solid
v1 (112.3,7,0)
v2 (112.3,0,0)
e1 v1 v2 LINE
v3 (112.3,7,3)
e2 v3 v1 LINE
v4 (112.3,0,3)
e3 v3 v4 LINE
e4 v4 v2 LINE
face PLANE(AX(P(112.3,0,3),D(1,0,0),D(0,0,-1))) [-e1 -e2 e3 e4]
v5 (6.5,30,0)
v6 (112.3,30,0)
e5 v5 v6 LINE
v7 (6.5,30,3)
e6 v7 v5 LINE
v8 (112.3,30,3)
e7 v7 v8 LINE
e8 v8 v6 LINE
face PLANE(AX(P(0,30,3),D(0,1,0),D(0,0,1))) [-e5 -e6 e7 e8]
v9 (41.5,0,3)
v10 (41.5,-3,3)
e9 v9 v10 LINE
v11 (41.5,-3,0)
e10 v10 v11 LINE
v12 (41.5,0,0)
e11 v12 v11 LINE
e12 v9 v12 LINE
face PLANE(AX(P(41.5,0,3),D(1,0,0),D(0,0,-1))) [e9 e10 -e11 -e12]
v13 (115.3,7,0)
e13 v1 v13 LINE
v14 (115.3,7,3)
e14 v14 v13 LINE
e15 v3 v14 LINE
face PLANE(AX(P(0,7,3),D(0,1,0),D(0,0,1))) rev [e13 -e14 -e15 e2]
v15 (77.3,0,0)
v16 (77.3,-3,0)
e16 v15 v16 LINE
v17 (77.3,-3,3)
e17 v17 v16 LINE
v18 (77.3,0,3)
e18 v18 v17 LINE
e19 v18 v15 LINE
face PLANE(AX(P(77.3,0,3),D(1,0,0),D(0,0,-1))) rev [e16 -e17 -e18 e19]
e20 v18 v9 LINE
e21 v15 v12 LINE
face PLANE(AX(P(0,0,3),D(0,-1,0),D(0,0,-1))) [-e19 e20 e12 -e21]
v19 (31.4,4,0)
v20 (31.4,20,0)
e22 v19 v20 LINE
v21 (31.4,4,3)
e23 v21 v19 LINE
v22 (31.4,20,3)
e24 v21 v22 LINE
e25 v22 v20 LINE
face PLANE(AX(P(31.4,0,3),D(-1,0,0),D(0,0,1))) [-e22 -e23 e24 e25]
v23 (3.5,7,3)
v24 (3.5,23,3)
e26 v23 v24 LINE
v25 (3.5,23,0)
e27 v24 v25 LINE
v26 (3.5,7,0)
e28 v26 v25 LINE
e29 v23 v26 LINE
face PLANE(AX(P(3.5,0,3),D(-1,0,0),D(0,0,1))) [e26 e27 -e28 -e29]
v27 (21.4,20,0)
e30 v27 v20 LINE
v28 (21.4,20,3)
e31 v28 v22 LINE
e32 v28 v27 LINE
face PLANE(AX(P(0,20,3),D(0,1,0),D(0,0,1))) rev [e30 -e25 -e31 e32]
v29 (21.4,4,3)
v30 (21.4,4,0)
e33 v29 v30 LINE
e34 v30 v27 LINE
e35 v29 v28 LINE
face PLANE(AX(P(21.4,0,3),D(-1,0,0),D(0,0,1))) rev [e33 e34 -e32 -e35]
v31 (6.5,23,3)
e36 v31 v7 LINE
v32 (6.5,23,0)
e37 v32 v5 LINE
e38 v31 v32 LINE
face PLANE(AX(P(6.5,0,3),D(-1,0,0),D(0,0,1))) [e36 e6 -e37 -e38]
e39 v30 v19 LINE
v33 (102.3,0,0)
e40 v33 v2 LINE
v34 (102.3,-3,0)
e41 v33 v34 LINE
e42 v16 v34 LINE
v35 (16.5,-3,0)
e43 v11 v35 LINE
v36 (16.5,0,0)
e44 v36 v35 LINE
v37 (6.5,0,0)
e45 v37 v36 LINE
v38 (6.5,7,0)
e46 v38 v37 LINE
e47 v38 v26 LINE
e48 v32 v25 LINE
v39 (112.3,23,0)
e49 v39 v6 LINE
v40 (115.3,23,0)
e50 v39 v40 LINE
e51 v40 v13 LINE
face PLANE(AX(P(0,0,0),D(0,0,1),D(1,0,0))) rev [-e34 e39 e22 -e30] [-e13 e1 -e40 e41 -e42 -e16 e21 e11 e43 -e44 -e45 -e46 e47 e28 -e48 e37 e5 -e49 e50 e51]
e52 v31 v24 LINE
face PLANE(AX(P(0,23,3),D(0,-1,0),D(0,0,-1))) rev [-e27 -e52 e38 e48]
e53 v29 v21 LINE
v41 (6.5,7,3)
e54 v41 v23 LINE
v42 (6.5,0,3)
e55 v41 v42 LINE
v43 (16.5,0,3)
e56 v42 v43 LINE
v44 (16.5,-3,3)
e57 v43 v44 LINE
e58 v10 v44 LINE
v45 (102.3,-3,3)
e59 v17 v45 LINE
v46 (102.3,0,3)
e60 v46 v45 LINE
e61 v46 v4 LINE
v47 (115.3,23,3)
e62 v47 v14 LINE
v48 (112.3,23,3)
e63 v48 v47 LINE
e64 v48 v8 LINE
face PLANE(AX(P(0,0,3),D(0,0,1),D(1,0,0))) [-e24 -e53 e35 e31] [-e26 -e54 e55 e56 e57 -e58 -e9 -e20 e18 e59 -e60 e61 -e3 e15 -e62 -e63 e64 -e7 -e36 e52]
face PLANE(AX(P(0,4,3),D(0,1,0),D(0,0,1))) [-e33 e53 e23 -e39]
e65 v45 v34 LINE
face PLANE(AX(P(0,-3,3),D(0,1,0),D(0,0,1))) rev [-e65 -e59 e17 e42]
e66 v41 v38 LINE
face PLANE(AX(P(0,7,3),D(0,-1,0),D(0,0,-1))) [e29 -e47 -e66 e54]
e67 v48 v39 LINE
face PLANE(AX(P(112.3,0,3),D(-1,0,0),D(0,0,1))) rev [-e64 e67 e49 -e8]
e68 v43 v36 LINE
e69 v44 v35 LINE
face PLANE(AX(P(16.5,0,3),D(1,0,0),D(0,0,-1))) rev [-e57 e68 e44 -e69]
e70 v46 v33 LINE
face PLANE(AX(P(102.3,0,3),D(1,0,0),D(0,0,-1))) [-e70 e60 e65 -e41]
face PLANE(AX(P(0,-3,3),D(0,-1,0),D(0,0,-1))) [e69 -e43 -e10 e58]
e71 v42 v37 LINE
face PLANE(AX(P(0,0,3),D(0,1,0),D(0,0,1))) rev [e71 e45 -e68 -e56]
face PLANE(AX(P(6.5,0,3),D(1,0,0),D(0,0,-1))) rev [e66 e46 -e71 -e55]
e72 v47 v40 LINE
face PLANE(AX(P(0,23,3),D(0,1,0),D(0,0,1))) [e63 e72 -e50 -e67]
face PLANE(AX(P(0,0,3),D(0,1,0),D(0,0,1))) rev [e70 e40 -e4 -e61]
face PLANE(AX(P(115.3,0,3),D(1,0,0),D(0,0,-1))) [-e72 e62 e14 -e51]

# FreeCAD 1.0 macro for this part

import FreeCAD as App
import Part
import Sketcher
from FreeCAD import Vector

doc = App.newDocument("Part")
body = doc.addObject("PartDesign::Body", "Body")

sketch1 = body.newObject("Sketcher::SketchObject", "Sketch")
sketch1.AttachmentSupport = (doc.getObject("XY_Plane"), [""])
sketch1.MapMode = "FlatFace"
sketch1.addGeometry([
    Part.LineSegment(Vector(41.5, 0, 0), Vector(77.3, 0, 0)),
    Part.LineSegment(Vector(77.3, 0, 0), Vector(77.3, -3, 0)),
    Part.LineSegment(Vector(77.3, -3, 0), Vector(102.3, -3, 0)),
    Part.LineSegment(Vector(102.3, -3, 0), Vector(102.3, 0, 0)),
    Part.LineSegment(Vector(102.3, 0, 0), Vector(112.3, 0, 0)),
    Part.LineSegment(Vector(112.3, 0, 0), Vector(112.3, 7, 0)),
    Part.LineSegment(Vector(112.3, 7, 0), Vector(115.3, 7, 0)),
    Part.LineSegment(Vector(115.3, 7, 0), Vector(115.3, 23, 0)),
    Part.LineSegment(Vector(115.3, 23, 0), Vector(112.3, 23, 0)),
    Part.LineSegment(Vector(112.3, 23, 0), Vector(112.3, 30, 0)),
    Part.LineSegment(Vector(112.3, 30, 0), Vector(6.5, 30, 0)),
    Part.LineSegment(Vector(6.5, 30, 0), Vector(6.5, 23, 0)),
    Part.LineSegment(Vector(6.5, 23, 0), Vector(3.5, 23, 0)),
    Part.LineSegment(Vector(3.5, 23, 0), Vector(3.5, 7, 0)),
    Part.LineSegment(Vector(3.5, 7, 0), Vector(6.5, 7, 0)),
    Part.LineSegment(Vector(6.5, 7, 0), Vector(6.5, 0, 0)),
    Part.LineSegment(Vector(6.5, 0, 0), Vector(16.5, 0, 0)),
    Part.LineSegment(Vector(16.5, 0, 0), Vector(16.5, -3, 0)),
    Part.LineSegment(Vector(16.5, -3, 0), Vector(41.5, -3, 0)),
    Part.LineSegment(Vector(41.5, -3, 0), Vector(41.5, 0, 0)),
    Part.LineSegment(Vector(31.4, 4, 0), Vector(21.4, 4, 0)),
    Part.LineSegment(Vector(21.4, 4, 0), Vector(21.4, 20, 0)),
    Part.LineSegment(Vector(21.4, 20, 0), Vector(31.4, 20, 0)),
    Part.LineSegment(Vector(31.4, 20, 0), Vector(31.4, 4, 0)),
], False)
sketch1.addConstraint([
    Sketcher.Constraint("Coincident", 0, 2, 1, 1),
    Sketcher.Constraint("Coincident", 1, 2, 2, 1),
    Sketcher.Constraint("Coincident", 2, 2, 3, 1),
    Sketcher.Constraint("Coincident", 3, 2, 4, 1),
    Sketcher.Constraint("Coincident", 4, 2, 5, 1),
    Sketcher.Constraint("Coincident", 5, 2, 6, 1),
    Sketcher.Constraint("Coincident", 6, 2, 7, 1),
    Sketcher.Constraint("Coincident", 7, 2, 8, 1),
    Sketcher.Constraint("Coincident", 8, 2, 9, 1),
    Sketcher.Constraint("Coincident", 9, 2, 10, 1),
    Sketcher.Constraint("Coincident", 10, 2, 11, 1),
    Sketcher.Constraint("Coincident", 11, 2, 12, 1),
    Sketcher.Constraint("Coincident", 12, 2, 13, 1),
    Sketcher.Constraint("Coincident", 13, 2, 14, 1),
    Sketcher.Constraint("Coincident", 14, 2, 15, 1),
    Sketcher.Constraint("Coincident", 15, 2, 16, 1),
    Sketcher.Constraint("Coincident", 16, 2, 17, 1),
    Sketcher.Constraint("Coincident", 17, 2, 18, 1),
    Sketcher.Constraint("Coincident", 18, 2, 19, 1),
    Sketcher.Constraint("Coincident", 19, 2, 0, 1),
    Sketcher.Constraint("Coincident", 20, 2, 21, 1),
    Sketcher.Constraint("Coincident", 21, 2, 22, 1),
    Sketcher.Constraint("Coincident", 22, 2, 23, 1),
    Sketcher.Constraint("Coincident", 23, 2, 20, 1),
    Sketcher.Constraint("Horizontal", 0),
    Sketcher.Constraint("Vertical", 1),
    Sketcher.Constraint("Horizontal", 2),
    Sketcher.Constraint("Vertical", 3),
    Sketcher.Constraint("Horizontal", 4),
    Sketcher.Constraint("Vertical", 5),
    Sketcher.Constraint("Horizontal", 6),
    Sketcher.Constraint("Vertical", 7),
    Sketcher.Constraint("Horizontal", 8),
    Sketcher.Constraint("Vertical", 9),
    Sketcher.Constraint("Horizontal", 10),
    Sketcher.Constraint("Vertical", 11),
    Sketcher.Constraint("Horizontal", 12),
    Sketcher.Constraint("Vertical", 13),
    Sketcher.Constraint("Horizontal", 14),
    Sketcher.Constraint("Vertical", 15),
    Sketcher.Constraint("Horizontal", 16),
    Sketcher.Constraint("Vertical", 17),
    Sketcher.Constraint("Horizontal", 18),
    Sketcher.Constraint("Vertical", 19),
    Sketcher.Constraint("Horizontal", 20),
    Sketcher.Constraint("Vertical", 21),
    Sketcher.Constraint("Horizontal", 22),
    Sketcher.Constraint("Vertical", 23),
    Sketcher.Constraint("PointOnObject", 0, 2, -1),
    Sketcher.Constraint("PointOnObject", 3, 2, -1),
    Sketcher.Constraint("PointOnObject", 15, 2, -1),
    Sketcher.Constraint("Horizontal", 8, 2, 11, 2),
    Sketcher.Constraint("Horizontal", 6, 2, 13, 2),
    Sketcher.Constraint("Horizontal", 2, 2, 17, 2),
    Sketcher.Constraint("Vertical", 5, 2, 8, 2),
    Sketcher.Constraint("Vertical", 11, 2, 14, 2),
    Sketcher.Constraint("Equal", 8, 12),
    Sketcher.Constraint("Equal", 4, 16),
    Sketcher.Constraint("Equal", 2, 18),
    Sketcher.Constraint("Equal", 16, 20),
    Sketcher.Constraint("Equal", 14, 1),
    Sketcher.Constraint("Equal", 5, 9),
    Sketcher.Constraint("Equal", 13, 21),
    Sketcher.Constraint("DistanceX", 2, 1, 2, 2, 25.0),
    Sketcher.Constraint("DistanceX", 4, 1, 4, 2, 10.0),
    Sketcher.Constraint("DistanceX", 6, 1, 6, 2, 3.0),
    Sketcher.Constraint("DistanceY", 5, 1, 5, 2, 7.0),
    Sketcher.Constraint("DistanceY", 7, 1, 7, 2, 16.0),
    Sketcher.Constraint("DistanceX", 0, 1, 0, 2, 35.8),
    Sketcher.Constraint("DistanceY", -1, 1, 20, 2, 4.0),
    Sketcher.Constraint("DistanceX", -1, 1, 0, 2, 77.3),
    Sketcher.Constraint("DistanceX", -1, 1, 20, 2, 21.4),
])
pad1 = body.newObject("PartDesign::Pad", "Pad")
pad1.Profile = sketch1
pad1.Length = 3

doc.recompute()
